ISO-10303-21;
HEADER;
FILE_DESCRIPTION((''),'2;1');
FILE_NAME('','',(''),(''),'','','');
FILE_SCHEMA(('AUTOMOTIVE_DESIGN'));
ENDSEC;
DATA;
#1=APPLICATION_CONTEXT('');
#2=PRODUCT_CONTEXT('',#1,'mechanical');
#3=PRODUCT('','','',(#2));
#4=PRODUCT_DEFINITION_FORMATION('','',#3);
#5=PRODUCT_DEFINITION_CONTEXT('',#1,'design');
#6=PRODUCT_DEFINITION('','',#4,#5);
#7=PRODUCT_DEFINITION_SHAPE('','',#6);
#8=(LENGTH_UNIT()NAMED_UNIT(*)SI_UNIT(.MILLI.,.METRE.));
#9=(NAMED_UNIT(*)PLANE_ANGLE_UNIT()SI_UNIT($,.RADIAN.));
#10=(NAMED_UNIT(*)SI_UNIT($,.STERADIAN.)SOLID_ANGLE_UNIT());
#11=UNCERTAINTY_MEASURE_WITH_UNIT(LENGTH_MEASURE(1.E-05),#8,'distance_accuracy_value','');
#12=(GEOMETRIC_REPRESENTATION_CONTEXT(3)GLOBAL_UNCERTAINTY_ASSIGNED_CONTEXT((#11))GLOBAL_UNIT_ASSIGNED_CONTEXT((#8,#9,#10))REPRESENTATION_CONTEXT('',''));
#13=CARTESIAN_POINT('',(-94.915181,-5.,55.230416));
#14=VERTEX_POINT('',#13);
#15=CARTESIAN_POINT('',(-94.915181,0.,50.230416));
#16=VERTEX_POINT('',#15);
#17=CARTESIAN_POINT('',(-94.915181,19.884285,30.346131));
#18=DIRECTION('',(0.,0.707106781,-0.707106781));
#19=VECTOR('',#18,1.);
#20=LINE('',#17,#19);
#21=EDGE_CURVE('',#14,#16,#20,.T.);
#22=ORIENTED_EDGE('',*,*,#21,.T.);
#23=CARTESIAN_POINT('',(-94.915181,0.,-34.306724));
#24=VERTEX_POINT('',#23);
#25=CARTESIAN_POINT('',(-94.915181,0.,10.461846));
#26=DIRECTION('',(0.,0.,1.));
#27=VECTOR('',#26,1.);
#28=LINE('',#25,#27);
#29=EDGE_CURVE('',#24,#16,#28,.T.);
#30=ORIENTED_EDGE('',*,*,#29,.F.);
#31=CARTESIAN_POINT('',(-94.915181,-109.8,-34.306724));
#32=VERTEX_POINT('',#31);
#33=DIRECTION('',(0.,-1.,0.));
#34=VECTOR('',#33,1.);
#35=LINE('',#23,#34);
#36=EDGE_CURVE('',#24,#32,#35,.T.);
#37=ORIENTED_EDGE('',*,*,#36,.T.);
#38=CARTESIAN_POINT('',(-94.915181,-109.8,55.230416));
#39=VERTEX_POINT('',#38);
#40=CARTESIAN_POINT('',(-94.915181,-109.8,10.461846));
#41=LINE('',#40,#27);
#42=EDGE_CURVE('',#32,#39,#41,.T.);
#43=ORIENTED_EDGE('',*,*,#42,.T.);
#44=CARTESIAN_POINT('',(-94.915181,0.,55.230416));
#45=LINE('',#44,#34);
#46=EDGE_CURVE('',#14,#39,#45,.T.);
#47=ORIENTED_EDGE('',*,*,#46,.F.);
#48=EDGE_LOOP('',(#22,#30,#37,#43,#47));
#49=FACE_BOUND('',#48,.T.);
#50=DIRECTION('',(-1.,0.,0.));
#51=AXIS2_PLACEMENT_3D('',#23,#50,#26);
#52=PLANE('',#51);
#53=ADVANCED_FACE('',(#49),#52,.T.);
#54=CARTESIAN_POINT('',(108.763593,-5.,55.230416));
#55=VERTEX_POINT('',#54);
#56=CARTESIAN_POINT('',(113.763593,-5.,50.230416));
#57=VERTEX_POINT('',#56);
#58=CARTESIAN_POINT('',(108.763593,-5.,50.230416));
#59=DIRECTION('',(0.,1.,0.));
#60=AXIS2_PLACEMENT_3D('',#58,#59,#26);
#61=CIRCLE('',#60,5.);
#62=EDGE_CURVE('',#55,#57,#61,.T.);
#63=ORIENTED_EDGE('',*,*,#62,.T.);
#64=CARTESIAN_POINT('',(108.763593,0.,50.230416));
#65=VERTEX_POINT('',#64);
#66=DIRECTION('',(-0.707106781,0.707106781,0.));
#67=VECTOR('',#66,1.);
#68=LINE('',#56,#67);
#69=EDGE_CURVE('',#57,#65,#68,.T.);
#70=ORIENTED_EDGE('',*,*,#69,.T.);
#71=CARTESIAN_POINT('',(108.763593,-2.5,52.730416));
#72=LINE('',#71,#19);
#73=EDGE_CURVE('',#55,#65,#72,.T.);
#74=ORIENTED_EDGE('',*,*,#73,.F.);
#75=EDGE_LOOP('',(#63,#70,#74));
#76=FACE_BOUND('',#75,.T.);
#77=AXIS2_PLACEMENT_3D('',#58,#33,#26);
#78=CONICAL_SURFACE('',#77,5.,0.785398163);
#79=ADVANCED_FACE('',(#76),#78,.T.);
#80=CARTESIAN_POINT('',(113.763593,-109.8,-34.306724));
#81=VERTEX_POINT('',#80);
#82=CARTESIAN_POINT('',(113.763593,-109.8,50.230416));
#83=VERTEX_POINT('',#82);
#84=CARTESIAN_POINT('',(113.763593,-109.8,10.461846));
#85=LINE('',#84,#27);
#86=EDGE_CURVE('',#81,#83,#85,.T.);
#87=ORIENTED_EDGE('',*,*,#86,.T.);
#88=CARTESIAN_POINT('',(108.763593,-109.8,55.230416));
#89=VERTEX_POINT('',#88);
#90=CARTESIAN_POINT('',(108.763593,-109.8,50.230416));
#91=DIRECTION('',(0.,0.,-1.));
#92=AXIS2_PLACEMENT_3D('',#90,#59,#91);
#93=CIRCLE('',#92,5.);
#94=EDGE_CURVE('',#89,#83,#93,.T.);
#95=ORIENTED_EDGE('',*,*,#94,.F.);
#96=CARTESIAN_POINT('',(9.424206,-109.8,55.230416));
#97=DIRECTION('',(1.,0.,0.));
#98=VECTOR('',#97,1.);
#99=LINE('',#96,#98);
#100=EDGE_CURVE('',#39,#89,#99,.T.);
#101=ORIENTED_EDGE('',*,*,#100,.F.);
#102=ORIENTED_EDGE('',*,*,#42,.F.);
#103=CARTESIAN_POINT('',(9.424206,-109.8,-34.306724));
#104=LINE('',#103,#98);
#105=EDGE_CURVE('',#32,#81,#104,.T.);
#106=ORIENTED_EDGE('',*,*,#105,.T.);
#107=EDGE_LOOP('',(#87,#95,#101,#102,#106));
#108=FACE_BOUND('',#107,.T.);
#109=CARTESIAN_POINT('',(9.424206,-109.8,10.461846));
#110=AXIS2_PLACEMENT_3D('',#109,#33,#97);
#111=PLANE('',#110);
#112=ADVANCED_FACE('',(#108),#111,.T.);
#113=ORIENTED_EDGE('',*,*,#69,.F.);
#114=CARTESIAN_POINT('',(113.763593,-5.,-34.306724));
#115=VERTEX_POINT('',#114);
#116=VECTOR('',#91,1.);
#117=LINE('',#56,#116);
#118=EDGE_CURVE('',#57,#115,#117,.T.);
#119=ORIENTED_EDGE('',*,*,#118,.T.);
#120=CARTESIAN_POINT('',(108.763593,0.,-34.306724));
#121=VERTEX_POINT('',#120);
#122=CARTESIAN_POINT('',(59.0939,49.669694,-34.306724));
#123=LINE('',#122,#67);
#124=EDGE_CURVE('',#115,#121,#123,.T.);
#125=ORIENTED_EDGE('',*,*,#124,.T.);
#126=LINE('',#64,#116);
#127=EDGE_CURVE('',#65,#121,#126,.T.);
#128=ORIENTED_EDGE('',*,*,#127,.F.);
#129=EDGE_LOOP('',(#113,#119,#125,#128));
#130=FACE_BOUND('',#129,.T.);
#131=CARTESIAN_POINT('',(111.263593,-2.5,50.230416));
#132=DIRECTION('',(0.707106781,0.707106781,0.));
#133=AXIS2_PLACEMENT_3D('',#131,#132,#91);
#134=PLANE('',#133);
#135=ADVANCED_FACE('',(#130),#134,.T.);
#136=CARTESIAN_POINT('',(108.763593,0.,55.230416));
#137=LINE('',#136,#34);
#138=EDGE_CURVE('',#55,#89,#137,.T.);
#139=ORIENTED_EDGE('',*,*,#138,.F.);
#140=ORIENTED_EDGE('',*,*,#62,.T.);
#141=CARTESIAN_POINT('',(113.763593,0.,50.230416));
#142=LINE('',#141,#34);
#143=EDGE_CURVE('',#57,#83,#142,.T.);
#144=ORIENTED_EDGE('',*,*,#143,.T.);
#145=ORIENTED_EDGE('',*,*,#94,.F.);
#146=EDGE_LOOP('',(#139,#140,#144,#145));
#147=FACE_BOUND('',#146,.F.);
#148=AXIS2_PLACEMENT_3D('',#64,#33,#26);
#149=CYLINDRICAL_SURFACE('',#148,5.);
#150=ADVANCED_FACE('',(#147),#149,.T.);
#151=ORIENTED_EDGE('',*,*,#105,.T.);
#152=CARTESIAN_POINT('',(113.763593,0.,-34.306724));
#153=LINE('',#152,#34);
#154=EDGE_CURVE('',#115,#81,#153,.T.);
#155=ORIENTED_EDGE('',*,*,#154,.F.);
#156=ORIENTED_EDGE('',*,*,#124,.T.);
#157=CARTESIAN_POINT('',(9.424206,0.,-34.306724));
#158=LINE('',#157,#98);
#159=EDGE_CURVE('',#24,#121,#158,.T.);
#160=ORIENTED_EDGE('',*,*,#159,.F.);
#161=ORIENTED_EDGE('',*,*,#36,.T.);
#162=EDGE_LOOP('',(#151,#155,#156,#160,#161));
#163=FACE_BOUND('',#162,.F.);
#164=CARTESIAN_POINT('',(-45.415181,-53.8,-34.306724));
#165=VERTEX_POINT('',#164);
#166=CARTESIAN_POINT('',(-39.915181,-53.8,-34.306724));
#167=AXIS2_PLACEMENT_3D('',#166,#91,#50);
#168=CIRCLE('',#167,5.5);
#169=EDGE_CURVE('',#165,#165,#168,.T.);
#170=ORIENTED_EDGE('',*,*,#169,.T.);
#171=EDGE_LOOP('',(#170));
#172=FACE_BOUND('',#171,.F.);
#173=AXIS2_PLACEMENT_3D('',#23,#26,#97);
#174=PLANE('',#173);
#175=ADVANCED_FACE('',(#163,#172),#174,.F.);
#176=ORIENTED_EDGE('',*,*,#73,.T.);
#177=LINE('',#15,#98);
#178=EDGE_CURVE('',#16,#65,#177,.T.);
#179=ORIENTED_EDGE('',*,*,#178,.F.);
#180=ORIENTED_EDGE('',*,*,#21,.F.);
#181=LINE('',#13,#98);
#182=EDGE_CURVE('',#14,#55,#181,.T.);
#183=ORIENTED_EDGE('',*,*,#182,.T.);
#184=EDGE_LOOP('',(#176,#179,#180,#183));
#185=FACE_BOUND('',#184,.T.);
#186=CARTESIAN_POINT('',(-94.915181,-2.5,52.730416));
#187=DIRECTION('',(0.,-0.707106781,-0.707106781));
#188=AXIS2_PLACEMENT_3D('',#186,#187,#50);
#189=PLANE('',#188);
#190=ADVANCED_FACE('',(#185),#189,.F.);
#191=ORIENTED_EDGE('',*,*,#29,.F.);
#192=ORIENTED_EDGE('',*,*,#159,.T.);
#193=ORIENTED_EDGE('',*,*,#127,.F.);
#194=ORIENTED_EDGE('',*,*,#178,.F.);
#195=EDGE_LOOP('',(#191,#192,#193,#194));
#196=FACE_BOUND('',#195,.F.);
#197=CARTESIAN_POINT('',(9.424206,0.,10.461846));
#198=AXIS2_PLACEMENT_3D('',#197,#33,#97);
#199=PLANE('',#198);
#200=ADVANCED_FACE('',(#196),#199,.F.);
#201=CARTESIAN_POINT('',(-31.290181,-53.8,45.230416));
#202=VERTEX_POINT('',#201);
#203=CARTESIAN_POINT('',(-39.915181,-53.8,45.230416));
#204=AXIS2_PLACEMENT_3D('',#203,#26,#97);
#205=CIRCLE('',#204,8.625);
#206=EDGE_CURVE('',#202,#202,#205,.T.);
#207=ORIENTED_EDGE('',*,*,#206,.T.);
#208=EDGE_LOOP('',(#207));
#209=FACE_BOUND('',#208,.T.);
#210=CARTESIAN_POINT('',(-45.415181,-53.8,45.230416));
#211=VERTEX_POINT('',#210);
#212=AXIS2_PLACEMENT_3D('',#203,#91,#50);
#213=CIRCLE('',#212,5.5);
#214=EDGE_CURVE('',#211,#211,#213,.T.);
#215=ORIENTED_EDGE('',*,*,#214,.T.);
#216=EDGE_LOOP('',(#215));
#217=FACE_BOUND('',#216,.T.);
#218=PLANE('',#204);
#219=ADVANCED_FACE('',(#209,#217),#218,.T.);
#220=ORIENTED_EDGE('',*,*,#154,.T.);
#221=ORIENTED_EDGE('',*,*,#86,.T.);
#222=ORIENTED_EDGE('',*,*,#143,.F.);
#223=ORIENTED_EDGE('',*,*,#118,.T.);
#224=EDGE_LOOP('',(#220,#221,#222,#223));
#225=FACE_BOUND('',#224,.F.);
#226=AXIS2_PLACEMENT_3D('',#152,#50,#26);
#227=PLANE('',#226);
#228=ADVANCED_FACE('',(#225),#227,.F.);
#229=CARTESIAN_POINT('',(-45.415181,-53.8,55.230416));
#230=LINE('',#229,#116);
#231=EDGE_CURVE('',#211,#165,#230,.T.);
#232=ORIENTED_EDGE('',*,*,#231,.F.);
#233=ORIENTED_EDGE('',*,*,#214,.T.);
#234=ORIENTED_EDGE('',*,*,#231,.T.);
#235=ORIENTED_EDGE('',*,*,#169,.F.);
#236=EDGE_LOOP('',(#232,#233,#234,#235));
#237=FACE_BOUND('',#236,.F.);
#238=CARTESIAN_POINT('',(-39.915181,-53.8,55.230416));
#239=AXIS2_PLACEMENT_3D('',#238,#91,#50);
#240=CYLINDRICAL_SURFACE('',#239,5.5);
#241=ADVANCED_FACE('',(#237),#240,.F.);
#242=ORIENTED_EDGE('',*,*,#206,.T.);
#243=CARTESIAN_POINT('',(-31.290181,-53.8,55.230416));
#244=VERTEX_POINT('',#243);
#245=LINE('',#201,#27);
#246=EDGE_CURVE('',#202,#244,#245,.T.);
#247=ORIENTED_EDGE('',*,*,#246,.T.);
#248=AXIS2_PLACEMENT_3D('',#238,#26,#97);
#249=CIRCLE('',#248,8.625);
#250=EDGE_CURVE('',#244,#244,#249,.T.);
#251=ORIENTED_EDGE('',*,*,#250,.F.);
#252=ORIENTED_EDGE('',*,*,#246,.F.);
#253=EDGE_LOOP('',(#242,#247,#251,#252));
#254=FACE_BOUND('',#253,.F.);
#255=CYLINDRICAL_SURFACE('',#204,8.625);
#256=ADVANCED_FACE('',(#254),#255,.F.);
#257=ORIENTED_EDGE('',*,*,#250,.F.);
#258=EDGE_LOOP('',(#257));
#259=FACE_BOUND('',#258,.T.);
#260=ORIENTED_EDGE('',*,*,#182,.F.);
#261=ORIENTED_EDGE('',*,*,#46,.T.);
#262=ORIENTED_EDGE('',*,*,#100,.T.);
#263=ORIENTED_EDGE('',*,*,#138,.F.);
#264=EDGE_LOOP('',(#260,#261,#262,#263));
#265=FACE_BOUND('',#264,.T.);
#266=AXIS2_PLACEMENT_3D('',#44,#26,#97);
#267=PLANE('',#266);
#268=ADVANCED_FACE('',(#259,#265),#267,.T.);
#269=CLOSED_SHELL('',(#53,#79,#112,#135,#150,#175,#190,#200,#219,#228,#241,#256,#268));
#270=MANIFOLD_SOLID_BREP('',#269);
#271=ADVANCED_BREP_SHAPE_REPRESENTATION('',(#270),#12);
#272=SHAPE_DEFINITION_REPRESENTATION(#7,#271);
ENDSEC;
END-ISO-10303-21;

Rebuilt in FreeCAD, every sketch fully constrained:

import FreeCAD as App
import Part
import Sketcher

V = App.Vector
Q = App.Units.Quantity


def edges_at(feature, points):
    """Names of the edges that pass closest to the given points."""
    edges = feature.Shape.Edges
    near = lambda p: min(range(len(edges)), key=lambda i: edges[i].distToShape(Part.Vertex(*p))[0])
    return sorted({f"Edge{near(p) + 1}" for p in points})


def add_polygon(sketch, points):
    """Adds a closed chain of lines whose ends are joined by coincident constraints."""
    first, n = sketch.GeometryCount, len(points)
    for a, b in zip(points, points[1:] + points[:1]):
        sketch.addGeometry(Part.LineSegment(App.Vector(*a, 0), App.Vector(*b, 0)), False)
    for i in range(n):
        sketch.addConstraint(Sketcher.Constraint("Coincident", first + i, 2, first + (i + 1) % n, 1))

doc = App.newDocument("Part")
body = doc.addObject("PartDesign::Body", "Body")

# Sketch on XZ plane
sketch1 = body.newObject("Sketcher::SketchObject", "Sketch")
sketch1.AttachmentSupport = (doc.getObject("XZ_Plane"), [""])
sketch1.MapMode = "FlatFace"
add_polygon(sketch1, [(-95, 55), (-95, -34), (114, -34), (114, 55)])  # lines 0-3
sketch1.addConstraint([
    Sketcher.Constraint("Vertical", 0),
    Sketcher.Constraint("Horizontal", 1),
    Sketcher.Constraint("Vertical", 2),
    Sketcher.Constraint("Horizontal", 3),
    Sketcher.Constraint("DistanceY", 0, 2, 0, 1, Q("89.53714 mm")),
    Sketcher.Constraint("DistanceX", 1, 1, 1, 2, Q("208.678775 mm")),
    Sketcher.Constraint("DistanceX", 0, 2, -1, 1, Q("94.915181 mm")),
    Sketcher.Constraint("DistanceY", 0, 2, -1, 1, Q("34.306724 mm")),
])
pad1 = body.newObject("PartDesign::Pad", "Pad")
pad1.Profile = sketch1
pad1.Length = 109.8

# Sketch on XY plane
sketch2 = body.newObject("Sketcher::SketchObject", "Sketch001")
sketch2.AttachmentSupport = (doc.getObject("XY_Plane"), [""])
sketch2.MapMode = "FlatFace"
sketch2.AttachmentOffset = App.Placement(V(0, 0, 55.230416), App.Rotation())
sketch2.addGeometry(Part.Circle(V(-40, -54, 0), V(0, 0, 1), 6), False)
sketch2.addConstraint([
    Sketcher.Constraint("Diameter", 0, Q("11 mm")),
    Sketcher.Constraint("DistanceY", 0, 3, -1, 1, Q("53.8 mm")),
    Sketcher.Constraint("DistanceX", 0, 3, -1, 1, Q("39.915181 mm")),
])
doc.recompute()
hole = body.newObject("PartDesign::Hole", "Hole")
hole.Profile = sketch2
hole.ThreadType = "None"
hole.Diameter = 11
hole.DepthType = "ThroughAll"
hole.HoleCutType = "Counterbore"
hole.HoleCutDiameter = 17.25
hole.HoleCutDepth = 10
doc.recompute()

fillet = body.newObject("PartDesign::Fillet", "Fillet")
fillet.Base = (hole, edges_at(hole, [(113.764, -54.9, 55.23)]))
fillet.Radius = 5
doc.recompute()

chamfer = body.newObject("PartDesign::Chamfer", "Chamfer")
chamfer.Base = (fillet, edges_at(fillet, [(6.924, 0, 55.23)]))
chamfer.Size = 5

doc.recompute()
